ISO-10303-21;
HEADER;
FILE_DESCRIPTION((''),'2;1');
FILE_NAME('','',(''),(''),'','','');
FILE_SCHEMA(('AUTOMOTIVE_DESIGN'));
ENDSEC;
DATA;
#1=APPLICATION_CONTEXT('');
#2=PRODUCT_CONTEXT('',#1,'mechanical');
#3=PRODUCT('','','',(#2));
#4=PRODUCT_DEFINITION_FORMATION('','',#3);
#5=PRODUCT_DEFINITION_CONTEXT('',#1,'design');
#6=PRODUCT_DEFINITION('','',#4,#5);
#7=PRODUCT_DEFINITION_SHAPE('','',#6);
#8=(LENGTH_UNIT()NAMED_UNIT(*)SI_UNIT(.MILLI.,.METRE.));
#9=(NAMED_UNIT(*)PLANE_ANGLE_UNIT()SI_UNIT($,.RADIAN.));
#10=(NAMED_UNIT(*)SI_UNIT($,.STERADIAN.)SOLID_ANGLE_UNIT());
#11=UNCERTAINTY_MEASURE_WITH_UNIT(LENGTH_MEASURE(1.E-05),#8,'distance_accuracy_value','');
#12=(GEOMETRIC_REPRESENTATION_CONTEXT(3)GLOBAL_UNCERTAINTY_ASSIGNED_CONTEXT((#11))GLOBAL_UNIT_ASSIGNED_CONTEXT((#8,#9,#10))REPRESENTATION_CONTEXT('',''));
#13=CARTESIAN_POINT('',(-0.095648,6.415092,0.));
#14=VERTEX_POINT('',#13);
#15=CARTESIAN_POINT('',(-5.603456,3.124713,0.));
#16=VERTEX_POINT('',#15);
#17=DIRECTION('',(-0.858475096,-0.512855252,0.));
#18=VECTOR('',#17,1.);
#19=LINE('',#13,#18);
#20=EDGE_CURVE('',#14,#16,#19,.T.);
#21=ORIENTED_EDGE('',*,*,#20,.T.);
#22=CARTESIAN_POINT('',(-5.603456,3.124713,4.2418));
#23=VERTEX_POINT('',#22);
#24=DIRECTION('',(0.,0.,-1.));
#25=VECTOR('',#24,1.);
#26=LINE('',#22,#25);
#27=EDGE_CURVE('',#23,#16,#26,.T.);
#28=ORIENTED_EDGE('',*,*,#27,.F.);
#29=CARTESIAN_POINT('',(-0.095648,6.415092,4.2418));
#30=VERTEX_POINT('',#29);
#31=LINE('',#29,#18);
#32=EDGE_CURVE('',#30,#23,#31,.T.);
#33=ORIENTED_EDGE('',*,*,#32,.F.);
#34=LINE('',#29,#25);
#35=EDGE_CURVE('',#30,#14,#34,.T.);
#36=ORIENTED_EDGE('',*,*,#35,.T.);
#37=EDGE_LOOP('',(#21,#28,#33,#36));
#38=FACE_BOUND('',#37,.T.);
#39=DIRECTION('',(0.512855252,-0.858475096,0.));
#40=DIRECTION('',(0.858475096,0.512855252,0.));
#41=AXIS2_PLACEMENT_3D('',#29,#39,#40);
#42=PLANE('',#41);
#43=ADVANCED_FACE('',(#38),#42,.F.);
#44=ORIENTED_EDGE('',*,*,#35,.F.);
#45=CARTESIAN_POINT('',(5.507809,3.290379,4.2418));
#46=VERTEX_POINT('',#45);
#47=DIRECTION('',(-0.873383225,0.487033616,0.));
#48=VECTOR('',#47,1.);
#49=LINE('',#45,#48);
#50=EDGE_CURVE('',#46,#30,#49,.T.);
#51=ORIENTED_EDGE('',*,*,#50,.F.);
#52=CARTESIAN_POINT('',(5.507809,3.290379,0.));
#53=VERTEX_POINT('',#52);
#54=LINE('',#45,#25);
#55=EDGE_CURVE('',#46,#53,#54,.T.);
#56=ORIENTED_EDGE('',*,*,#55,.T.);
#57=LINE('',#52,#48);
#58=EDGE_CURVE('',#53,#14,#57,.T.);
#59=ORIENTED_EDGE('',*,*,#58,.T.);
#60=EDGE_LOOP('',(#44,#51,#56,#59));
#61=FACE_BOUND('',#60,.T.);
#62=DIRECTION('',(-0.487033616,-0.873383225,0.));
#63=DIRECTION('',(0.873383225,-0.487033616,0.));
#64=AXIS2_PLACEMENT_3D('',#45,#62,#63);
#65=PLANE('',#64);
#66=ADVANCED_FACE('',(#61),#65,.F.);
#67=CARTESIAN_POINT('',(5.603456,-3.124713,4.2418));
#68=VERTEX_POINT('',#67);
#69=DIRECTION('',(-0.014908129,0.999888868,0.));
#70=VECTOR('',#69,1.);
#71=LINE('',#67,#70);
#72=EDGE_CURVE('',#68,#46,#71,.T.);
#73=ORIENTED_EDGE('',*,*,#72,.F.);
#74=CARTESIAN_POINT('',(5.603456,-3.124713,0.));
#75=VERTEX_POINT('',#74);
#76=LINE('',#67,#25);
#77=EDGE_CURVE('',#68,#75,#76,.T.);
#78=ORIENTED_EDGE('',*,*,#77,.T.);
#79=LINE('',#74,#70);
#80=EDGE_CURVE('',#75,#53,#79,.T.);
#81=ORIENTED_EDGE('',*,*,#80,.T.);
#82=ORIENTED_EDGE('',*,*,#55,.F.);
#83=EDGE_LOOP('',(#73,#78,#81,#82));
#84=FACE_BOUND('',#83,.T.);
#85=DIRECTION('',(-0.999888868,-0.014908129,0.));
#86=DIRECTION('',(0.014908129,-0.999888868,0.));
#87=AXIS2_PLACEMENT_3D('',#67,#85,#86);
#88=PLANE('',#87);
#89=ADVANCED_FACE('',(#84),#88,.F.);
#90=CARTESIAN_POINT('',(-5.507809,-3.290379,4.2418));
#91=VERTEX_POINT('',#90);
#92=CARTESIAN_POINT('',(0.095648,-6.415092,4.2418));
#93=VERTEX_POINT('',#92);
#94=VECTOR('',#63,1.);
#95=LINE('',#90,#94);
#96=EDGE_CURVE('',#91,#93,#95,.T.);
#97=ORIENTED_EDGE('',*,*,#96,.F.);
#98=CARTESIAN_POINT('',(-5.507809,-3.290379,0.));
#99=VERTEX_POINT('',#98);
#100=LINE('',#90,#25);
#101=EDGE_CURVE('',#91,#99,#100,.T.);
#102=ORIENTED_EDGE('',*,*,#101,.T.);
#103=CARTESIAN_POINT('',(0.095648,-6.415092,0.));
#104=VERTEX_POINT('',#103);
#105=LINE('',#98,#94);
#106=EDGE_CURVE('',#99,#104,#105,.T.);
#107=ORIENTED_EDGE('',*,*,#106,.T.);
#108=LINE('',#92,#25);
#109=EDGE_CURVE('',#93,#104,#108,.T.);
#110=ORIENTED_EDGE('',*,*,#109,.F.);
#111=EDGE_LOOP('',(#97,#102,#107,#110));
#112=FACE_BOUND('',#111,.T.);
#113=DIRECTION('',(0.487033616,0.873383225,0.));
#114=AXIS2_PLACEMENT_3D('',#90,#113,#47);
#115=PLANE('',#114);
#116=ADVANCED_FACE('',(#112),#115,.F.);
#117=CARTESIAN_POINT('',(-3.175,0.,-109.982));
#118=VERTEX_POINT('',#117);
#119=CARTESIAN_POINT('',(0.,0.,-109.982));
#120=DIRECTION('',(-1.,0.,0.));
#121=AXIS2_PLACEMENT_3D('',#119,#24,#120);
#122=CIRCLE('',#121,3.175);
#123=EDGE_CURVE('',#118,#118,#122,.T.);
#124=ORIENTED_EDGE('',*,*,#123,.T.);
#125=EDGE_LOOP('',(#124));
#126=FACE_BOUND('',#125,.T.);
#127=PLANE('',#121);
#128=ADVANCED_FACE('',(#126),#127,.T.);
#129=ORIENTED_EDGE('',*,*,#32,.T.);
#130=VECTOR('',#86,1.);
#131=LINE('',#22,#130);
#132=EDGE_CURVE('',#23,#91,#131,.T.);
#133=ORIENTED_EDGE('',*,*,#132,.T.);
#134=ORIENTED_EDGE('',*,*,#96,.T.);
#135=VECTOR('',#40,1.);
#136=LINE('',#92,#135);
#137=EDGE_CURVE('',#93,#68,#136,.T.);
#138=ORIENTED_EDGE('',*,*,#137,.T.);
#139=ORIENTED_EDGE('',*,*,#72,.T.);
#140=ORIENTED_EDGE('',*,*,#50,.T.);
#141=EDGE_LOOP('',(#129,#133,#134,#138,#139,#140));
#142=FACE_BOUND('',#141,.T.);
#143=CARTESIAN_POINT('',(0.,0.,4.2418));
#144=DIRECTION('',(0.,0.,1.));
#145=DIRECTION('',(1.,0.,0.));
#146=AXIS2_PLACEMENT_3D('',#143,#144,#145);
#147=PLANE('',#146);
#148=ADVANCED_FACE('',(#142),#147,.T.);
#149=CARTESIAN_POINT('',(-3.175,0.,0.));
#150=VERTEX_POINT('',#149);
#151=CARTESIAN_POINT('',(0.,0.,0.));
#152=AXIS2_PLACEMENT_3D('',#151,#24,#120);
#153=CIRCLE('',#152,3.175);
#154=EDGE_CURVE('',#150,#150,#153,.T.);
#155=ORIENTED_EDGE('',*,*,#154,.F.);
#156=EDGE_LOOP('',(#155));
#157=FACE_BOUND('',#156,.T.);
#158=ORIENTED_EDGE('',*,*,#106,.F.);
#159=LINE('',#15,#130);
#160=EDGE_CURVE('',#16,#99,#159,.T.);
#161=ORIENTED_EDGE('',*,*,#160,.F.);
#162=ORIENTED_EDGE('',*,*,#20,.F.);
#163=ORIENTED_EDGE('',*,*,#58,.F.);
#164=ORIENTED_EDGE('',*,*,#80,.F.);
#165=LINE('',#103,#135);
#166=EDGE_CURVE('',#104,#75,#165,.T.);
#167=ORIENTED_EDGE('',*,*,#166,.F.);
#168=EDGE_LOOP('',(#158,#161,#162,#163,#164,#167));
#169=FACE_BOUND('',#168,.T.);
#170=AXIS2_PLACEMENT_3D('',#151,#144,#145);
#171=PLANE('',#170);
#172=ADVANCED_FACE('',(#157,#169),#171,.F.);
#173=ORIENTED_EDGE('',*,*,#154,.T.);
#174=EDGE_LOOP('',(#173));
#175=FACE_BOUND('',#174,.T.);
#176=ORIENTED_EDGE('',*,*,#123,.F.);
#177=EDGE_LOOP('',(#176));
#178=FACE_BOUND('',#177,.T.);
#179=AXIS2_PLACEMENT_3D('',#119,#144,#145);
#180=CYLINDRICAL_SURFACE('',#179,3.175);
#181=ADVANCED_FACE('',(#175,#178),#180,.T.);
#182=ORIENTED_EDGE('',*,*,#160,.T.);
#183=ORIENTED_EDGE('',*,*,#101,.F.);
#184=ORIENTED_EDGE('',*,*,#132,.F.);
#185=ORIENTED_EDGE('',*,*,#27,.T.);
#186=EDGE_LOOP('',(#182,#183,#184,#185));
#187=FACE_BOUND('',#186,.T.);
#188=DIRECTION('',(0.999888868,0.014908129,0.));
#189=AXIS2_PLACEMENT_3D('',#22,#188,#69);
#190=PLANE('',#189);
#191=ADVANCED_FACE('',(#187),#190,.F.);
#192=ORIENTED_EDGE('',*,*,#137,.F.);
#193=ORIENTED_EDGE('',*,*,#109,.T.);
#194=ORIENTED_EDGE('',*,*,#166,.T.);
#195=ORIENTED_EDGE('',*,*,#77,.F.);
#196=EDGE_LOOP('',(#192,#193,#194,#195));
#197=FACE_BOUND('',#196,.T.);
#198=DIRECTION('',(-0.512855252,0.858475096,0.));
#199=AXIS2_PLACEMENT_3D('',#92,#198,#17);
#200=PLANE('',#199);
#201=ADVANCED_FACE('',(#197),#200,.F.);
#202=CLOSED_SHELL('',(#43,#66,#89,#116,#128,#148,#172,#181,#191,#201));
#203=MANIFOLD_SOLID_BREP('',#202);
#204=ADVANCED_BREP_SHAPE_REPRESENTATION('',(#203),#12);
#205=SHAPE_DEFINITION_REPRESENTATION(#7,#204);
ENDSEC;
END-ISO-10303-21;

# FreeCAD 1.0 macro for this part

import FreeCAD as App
import Part
import Sketcher
Q = App.Units.Quantity

doc = App.newDocument("Part")
params = doc.addObject("Spreadsheet::Sheet", "Params")
for row, (alias, value) in enumerate([
    ("pad1_length", "0.167 in"),
    ("sketch2_diameter", "0.25 in"),
    ("pad2_length", "4.33 in"),
], start=1):
    params.set(f"A{row}", alias)
    params.set(f"B{row}", "=" + value)
    params.setAlias(f"B{row}", alias)

body = doc.addObject("PartDesign::Body", "Body")

# Sketch on XY plane
sketch1 = body.newObject("Sketcher::SketchObject", "Sketch")
sketch1.AttachmentSupport = (doc.getObject("XY_Plane"), [""])
sketch1.MapMode = "FlatFace"
sketch1.addGeometry(Part.LineSegment(App.Vector(6, 3, 0), App.Vector(0, 6, 0)), False)
sketch1.addGeometry(Part.LineSegment(App.Vector(0, 6, 0), App.Vector(-6, 3, 0)), False)
sketch1.addGeometry(Part.LineSegment(App.Vector(-6, 3, 0), App.Vector(-6, -3, 0)), False)
sketch1.addGeometry(Part.LineSegment(App.Vector(-6, -3, 0), App.Vector(0, -6, 0)), False)
sketch1.addGeometry(Part.LineSegment(App.Vector(0, -6, 0), App.Vector(6, -3, 0)), False)
sketch1.addGeometry(Part.LineSegment(App.Vector(6, -3, 0), App.Vector(6, 3, 0)), False)
sketch1.addConstraint(Sketcher.Constraint("Coincident", 0, 2, 1, 1))
sketch1.addConstraint(Sketcher.Constraint("Coincident", 1, 2, 2, 1))
sketch1.addConstraint(Sketcher.Constraint("Coincident", 2, 2, 3, 1))
sketch1.addConstraint(Sketcher.Constraint("Coincident", 3, 2, 4, 1))
sketch1.addConstraint(Sketcher.Constraint("Coincident", 4, 2, 5, 1))
sketch1.addConstraint(Sketcher.Constraint("Coincident", 5, 2, 0, 1))
sketch1.addConstraint(Sketcher.Constraint("Symmetric", 0, 2, 3, 2, -1, 1))
sketch1.addConstraint(Sketcher.Constraint("Symmetric", 1, 2, 4, 2, -1, 1))
sketch1.addConstraint(Sketcher.Constraint("Symmetric", 2, 2, 5, 2, -1, 1))
sketch1.addConstraint(Sketcher.Constraint("Equal", 0, 1))
sketch1.addConstraint(Sketcher.Constraint("Equal", 1, 2))
sketch1.addConstraint(Sketcher.Constraint("DistanceY", -1, 1, 0, 2, Q("6.415092 mm")))
sketch1.addConstraint(Sketcher.Constraint("DistanceX", 2, 2, -1, 1, Q("5.507809 mm")))
sketch1.addConstraint(Sketcher.Constraint("DistanceY", 2, 2, -1, 1, Q("3.290379 mm")))
sketch1.addConstraint(Sketcher.Constraint("DistanceX", 1, 2, 0, 2, Q("5.507809 mm")))
pad1 = body.newObject("PartDesign::Pad", "Pad")
pad1.Profile = sketch1
pad1.setExpression("Length", "Params.pad1_length")

# Sketch on XY plane
sketch2 = body.newObject("Sketcher::SketchObject", "Sketch001")
sketch2.AttachmentSupport = (doc.getObject("XY_Plane"), [""])
sketch2.MapMode = "FlatFace"
sketch2.addGeometry(Part.Circle(App.Vector(0, 0, 0), App.Vector(0, 0, 1), 3.2), False)
sketch2.addConstraint(Sketcher.Constraint("Coincident", 0, 3, -1, 1))
sketch2.addConstraint(Sketcher.Constraint("Diameter", 0, Q("0.25 in")))
sketch2.setExpression("Constraints[1]", "Params.sketch2_diameter")
pad2 = body.newObject("PartDesign::Pad", "Pad001")
pad2.Profile = sketch2
pad2.setExpression("Length", "Params.pad2_length")
pad2.Reversed = True

doc.recompute()
